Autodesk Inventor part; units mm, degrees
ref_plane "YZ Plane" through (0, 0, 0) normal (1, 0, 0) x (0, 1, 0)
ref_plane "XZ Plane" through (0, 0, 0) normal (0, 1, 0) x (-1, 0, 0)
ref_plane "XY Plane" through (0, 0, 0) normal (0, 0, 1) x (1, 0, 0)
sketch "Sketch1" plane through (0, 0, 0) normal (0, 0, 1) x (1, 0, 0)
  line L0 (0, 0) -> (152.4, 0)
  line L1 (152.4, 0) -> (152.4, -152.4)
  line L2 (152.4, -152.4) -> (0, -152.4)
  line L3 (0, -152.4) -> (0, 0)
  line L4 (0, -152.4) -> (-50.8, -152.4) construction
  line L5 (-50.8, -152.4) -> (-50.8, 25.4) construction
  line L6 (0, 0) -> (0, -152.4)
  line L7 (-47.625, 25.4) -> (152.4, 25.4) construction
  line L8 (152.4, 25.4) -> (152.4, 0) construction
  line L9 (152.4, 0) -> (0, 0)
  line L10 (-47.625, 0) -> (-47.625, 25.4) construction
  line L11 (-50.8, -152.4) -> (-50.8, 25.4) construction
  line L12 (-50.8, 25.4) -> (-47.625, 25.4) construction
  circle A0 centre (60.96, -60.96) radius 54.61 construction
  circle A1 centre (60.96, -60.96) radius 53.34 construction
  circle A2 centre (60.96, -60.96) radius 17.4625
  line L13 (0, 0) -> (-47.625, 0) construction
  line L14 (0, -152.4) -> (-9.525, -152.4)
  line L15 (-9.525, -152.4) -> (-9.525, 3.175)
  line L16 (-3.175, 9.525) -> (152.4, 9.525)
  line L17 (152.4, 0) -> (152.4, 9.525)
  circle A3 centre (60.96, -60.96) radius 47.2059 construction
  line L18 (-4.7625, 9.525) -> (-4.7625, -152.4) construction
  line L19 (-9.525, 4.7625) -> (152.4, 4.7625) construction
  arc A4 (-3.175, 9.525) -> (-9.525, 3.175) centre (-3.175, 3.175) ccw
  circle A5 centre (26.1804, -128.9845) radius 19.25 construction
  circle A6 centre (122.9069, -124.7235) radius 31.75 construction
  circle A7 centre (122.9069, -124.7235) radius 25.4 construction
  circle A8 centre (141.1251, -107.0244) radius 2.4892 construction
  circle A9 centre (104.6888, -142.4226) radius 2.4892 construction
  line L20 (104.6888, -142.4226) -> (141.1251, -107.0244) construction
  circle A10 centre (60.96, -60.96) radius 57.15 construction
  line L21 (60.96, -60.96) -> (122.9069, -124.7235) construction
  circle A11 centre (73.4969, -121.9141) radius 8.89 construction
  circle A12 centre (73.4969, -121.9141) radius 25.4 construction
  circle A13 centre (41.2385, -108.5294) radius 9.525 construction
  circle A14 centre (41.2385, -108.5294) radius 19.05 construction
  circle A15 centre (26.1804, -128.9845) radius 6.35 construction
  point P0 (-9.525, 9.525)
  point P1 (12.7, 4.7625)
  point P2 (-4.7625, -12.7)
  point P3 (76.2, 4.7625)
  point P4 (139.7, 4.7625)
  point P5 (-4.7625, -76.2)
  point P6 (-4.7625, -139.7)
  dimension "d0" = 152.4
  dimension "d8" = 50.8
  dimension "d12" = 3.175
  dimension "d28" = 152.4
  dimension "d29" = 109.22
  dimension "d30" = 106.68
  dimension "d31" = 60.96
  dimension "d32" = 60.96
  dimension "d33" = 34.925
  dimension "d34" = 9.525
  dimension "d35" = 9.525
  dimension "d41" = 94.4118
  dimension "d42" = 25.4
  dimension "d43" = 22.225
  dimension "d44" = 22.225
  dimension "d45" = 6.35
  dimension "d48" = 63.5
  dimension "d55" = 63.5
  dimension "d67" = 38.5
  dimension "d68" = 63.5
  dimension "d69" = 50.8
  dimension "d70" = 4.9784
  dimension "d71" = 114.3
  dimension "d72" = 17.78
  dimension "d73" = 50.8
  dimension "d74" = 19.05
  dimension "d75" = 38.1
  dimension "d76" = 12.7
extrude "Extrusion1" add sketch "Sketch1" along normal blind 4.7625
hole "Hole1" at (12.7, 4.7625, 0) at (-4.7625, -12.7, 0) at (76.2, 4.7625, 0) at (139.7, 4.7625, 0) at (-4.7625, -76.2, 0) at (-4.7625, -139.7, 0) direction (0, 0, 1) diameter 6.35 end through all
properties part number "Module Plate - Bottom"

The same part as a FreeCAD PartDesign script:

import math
import FreeCAD as App
import Part
import Sketcher
from FreeCAD import Vector
Q = App.Units.Quantity

doc = App.newDocument("Part")
body = doc.addObject("PartDesign::Body", "Body")

# Sketch on XY plane
sketch1 = doc.addObject("Sketcher::SketchObject", "Sketch")
body.addObject(sketch1)
sketch1.AttachmentSupport = (doc.XY_Plane, [""])
sketch1.MapMode = "FlatFace"
sketch1.addGeometry(Part.LineSegment(Vector(-10, -152, 0), Vector(152, -152, 0)), False)
sketch1.addGeometry(Part.LineSegment(Vector(152, -152, 0), Vector(152, 10, 0)), False)
sketch1.addGeometry(Part.LineSegment(Vector(152, 10, 0), Vector(-3, 10, 0)), False)
sketch1.addGeometry(Part.ArcOfCircle(Part.Circle(Vector(-3, 3, 0), Vector(0, 0, 1), 6), math.radians(90), math.radians(180)), False)
sketch1.addGeometry(Part.LineSegment(Vector(-10, 3, 0), Vector(-10, -152, 0)), False)
sketch1.addGeometry(Part.Circle(Vector(61, -61, 0), Vector(0, 0, 1), 17), False)
sketch1.addConstraint(Sketcher.Constraint("Coincident", 0, 2, 1, 1))
sketch1.addConstraint(Sketcher.Constraint("Coincident", 1, 2, 2, 1))
sketch1.addConstraint(Sketcher.Constraint("Tangent", 2, 2, 3, 1))
sketch1.addConstraint(Sketcher.Constraint("Tangent", 3, 2, 4, 1))
sketch1.addConstraint(Sketcher.Constraint("Coincident", 4, 2, 0, 1))
sketch1.addConstraint(Sketcher.Constraint("Horizontal", 0))
sketch1.addConstraint(Sketcher.Constraint("Vertical", 1))
sketch1.addConstraint(Sketcher.Constraint("Horizontal", 2))
sketch1.addConstraint(Sketcher.Constraint("Vertical", 4))
sketch1.addConstraint(Sketcher.Constraint("Equal", 0, 1))
sketch1.addConstraint(Sketcher.Constraint("Radius", 3, Q("0.25 in")))
sketch1.addConstraint(Sketcher.Constraint("Diameter", 5, Q("1.375 in")))
sketch1.addConstraint(Sketcher.Constraint("DistanceX", -1, 1, 0, 2, Q("6 in")))
sketch1.addConstraint(Sketcher.Constraint("DistanceY", 0, 2, -1, 1, Q("6 in")))
sketch1.addConstraint(Sketcher.Constraint("DistanceX", -1, 1, 5, 3, Q("2.4 in")))
sketch1.addConstraint(Sketcher.Constraint("DistanceY", 5, 3, -1, 1, Q("2.4 in")))
sketch1.addConstraint(Sketcher.Constraint("DistanceX", 3, 3, -1, 1, Q("0.125 in")))
pad1 = doc.addObject("PartDesign::Pad", "Pad")
body.addObject(pad1)
pad1.Profile = sketch1
pad1.Length = Q("0.1875 in")

# Sketch on XY plane
sketch2 = doc.addObject("Sketcher::SketchObject", "Sketch001")
body.addObject(sketch2)
sketch2.AttachmentSupport = (doc.XY_Plane, [""])
sketch2.MapMode = "FlatFace"
sketch2.addGeometry(Part.Circle(Vector(12.7, 4.8, 0), Vector(0, 0, 1), 3.2), False)
sketch2.addGeometry(Part.Circle(Vector(-4.8, -12.7, 0), Vector(0, 0, 1), 3.2), False)
sketch2.addGeometry(Part.Circle(Vector(76.2, 4.8, 0), Vector(0, 0, 1), 3.2), False)
sketch2.addGeometry(Part.Circle(Vector(139.7, 4.8, 0), Vector(0, 0, 1), 3.2), False)
sketch2.addGeometry(Part.Circle(Vector(-4.8, -76.2, 0), Vector(0, 0, 1), 3.2), False)
sketch2.addGeometry(Part.Circle(Vector(-4.8, -139.7, 0), Vector(0, 0, 1), 3.2), False)
sketch2.addConstraint(Sketcher.Constraint("Equal", 0, 1))
sketch2.addConstraint(Sketcher.Constraint("Equal", 1, 2))
sketch2.addConstraint(Sketcher.Constraint("Equal", 2, 3))
sketch2.addConstraint(Sketcher.Constraint("Equal", 3, 4))
sketch2.addConstraint(Sketcher.Constraint("Equal", 4, 5))
sketch2.addConstraint(Sketcher.Constraint("Horizontal", 0, 3, 2, 3))
sketch2.addConstraint(Sketcher.Constraint("Horizontal", 2, 3, 3, 3))
sketch2.addConstraint(Sketcher.Constraint("Vertical", 1, 3, 4, 3))
sketch2.addConstraint(Sketcher.Constraint("Vertical", 4, 3, 5, 3))
sketch2.addConstraint(Sketcher.Constraint("Diameter", 0, Q("0.25 in")))
sketch2.addConstraint(Sketcher.Constraint("DistanceX", -1, 1, 2, 3, Q("3 in")))
sketch2.addConstraint(Sketcher.Constraint("DistanceY", 4, 3, -1, 1, Q("3 in")))
sketch2.addConstraint(Sketcher.Constraint("DistanceX", 0, 3, 3, 3, Q("5 in")))
sketch2.addConstraint(Sketcher.Constraint("DistanceY", 5, 3, 1, 3, Q("5 in")))
sketch2.addConstraint(Sketcher.Constraint("DistanceX", -1, 1, 0, 3, Q("0.5 in")))
sketch2.addConstraint(Sketcher.Constraint("DistanceY", 1, 3, -1, 1, Q("0.5 in")))
sketch2.addConstraint(Sketcher.Constraint("DistanceY", -1, 1, 0, 3, Q("0.1875 in")))
sketch2.addConstraint(Sketcher.Constraint("DistanceX", 1, 3, -1, 1, Q("0.1875 in")))
doc.recompute()
hole = doc.addObject("PartDesign::Hole", "Hole")
body.addObject(hole)
hole.Profile = sketch2
hole.ThreadType = "None"
hole.Diameter = Q("0.25 in")
hole.DepthType = "ThroughAll"
hole.Reversed = True

doc.recompute()
